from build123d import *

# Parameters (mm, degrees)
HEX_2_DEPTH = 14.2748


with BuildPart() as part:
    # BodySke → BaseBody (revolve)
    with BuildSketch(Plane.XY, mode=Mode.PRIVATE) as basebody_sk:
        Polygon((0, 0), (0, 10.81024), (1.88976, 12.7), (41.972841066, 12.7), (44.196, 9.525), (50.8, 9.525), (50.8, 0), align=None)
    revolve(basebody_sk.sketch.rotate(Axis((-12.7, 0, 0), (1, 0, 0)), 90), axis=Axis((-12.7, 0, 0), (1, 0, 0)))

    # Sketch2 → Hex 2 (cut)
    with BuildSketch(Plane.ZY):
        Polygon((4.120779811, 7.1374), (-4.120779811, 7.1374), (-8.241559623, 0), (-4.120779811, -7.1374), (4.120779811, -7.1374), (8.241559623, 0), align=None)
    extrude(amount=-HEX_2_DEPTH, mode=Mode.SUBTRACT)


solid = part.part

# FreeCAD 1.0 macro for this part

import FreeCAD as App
import Part
import Sketcher
Q = App.Units.Quantity


def add_polygon(sketch, points):
    """Adds a closed chain of lines whose ends are joined by coincident constraints."""
    first, n = sketch.GeometryCount, len(points)
    for a, b in zip(points, points[1:] + points[:1]):
        sketch.addGeometry(Part.LineSegment(App.Vector(*a, 0), App.Vector(*b, 0)), False)
    for i in range(n):
        sketch.addConstraint(Sketcher.Constraint("Coincident", first + i, 2, first + (i + 1) % n, 1))

doc = App.newDocument("Part")
params = doc.addObject("Spreadsheet::Sheet", "Params")
for row, (alias, value) in enumerate([
    ("sketch1_width", "2 in"),
    ("sketch1_width2", "0.26 in"),
    ("sketch1_height", "0.375 in"),
    ("revolution_angle", "360 deg"),
    ("pocket1_length", "0.562 in"),
], start=1):
    params.set(f"A{row}", alias)
    params.set(f"B{row}", "=" + value)
    params.setAlias(f"B{row}", alias)

body = doc.addObject("PartDesign::Body", "Body")

# Sketch on XY plane
sketch1 = body.newObject("Sketcher::SketchObject", "Sketch")
sketch1.AttachmentSupport = (doc.getObject("XY_Plane"), [""])
sketch1.MapMode = "FlatFace"
add_polygon(sketch1, [(0, 10.8), (0, 0), (50.8, 0), (50.8, 9.5), (44.2, 9.5), (42, 12.7), (1.9, 12.7)])  # lines 0-6
sketch1.addConstraint(Sketcher.Constraint("Vertical", 0))
sketch1.addConstraint(Sketcher.Constraint("Horizontal", 1))
sketch1.addConstraint(Sketcher.Constraint("Vertical", 2))
sketch1.addConstraint(Sketcher.Constraint("Horizontal", 3))
sketch1.addConstraint(Sketcher.Constraint("Horizontal", 5))
sketch1.addConstraint(Sketcher.Constraint("Coincident", 0, 2, -1, 1))
sketch1.addConstraint(Sketcher.Constraint("DistanceX", 1, 1, 1, 2, Q("2 in")))
sketch1.addConstraint(Sketcher.Constraint("Angle", 4, Q("125 deg")))
sketch1.addConstraint(Sketcher.Constraint("Angle", 6, Q("-135 deg")))
sketch1.addConstraint(Sketcher.Constraint("DistanceX", 3, 2, 3, 1, Q("0.26 in")))
sketch1.addConstraint(Sketcher.Constraint("DistanceY", -1, 1, 4, 2, Q("0.5 in")))
sketch1.addConstraint(Sketcher.Constraint("DistanceY", 2, 1, 2, 2, Q("0.375 in")))
sketch1.addConstraint(Sketcher.Constraint("DistanceY", 0, 2, 0, 1, Q("0.4256 in")))
sketch1.setExpression("Constraints[13]", "Params.sketch1_width")
sketch1.setExpression("Constraints[16]", "Params.sketch1_width2")
sketch1.setExpression("Constraints[18]", "Params.sketch1_height")
revolution = body.newObject("PartDesign::Revolution", "Revolution")
revolution.Profile = sketch1
revolution.ReferenceAxis = (sketch1, ["H_Axis"])
revolution.setExpression("Angle", "Params.revolution_angle")

# Sketch on YZ plane
sketch2 = body.newObject("Sketcher::SketchObject", "Sketch001")
sketch2.AttachmentSupport = (doc.getObject("YZ_Plane"), [""])
sketch2.MapMode = "FlatFace"
add_polygon(sketch2, [(7, 4), (7, -4), (0, -8), (-7, -4), (-7, 4), (0, 8)])  # lines 0-5
sketch2.addConstraint(Sketcher.Constraint("Vertical", 0))
sketch2.addConstraint(Sketcher.Constraint("Vertical", 3))
sketch2.addConstraint(Sketcher.Constraint("Symmetric", 0, 2, 3, 2, -1, 1))
sketch2.addConstraint(Sketcher.Constraint("Symmetric", 1, 2, 4, 2, -1, 1))
sketch2.addConstraint(Sketcher.Constraint("PointOnObject", 1, 2, -2))
sketch2.addConstraint(Sketcher.Constraint("Parallel", 2, 5))
sketch2.addConstraint(Sketcher.Constraint("Horizontal", 0, 2, 2, 2))
sketch2.addConstraint(Sketcher.Constraint("Angle", 1, Q("-150 deg")))
sketch2.addConstraint(Sketcher.Constraint("DistanceX", -1, 1, 0, 2, Q("0.281 in")))
sketch2.addConstraint(Sketcher.Constraint("DistanceY", 0, 2, 0, 1, 8.24156))
pocket1 = body.newObject("PartDesign::Pocket", "Pocket")
pocket1.Profile = sketch2
pocket1.setExpression("Length", "Params.pocket1_length")
pocket1.Reversed = True

doc.recompute()
